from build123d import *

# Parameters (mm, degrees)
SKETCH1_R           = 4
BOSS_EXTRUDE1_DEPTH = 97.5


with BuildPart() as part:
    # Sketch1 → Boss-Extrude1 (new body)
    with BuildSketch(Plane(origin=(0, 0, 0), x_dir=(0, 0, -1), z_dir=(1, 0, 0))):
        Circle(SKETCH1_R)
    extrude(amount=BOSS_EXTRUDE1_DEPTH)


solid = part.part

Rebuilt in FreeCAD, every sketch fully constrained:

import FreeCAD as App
import Part
import Sketcher

V = App.Vector

doc = App.newDocument("Part")
params = doc.addObject("Spreadsheet::Sheet", "Params")
for row, (alias, value) in enumerate([
    ("sketch1_diameter", "8 mm"),
    ("pad1_length", "97.5 mm"),
], start=1):
    params.set(f"A{row}", alias)
    params.set(f"B{row}", "=" + value)
    params.setAlias(f"B{row}", alias)

body = doc.addObject("PartDesign::Body", "Body")

sketch1 = body.newObject("Sketcher::SketchObject", "Sketch")
sketch1.AttachmentSupport = (doc.getObject("YZ_Plane"), [""])
sketch1.MapMode = "FlatFace"
sketch1.addGeometry(Part.Circle(V(0, 0, 0), V(0, 0, 1), 4), False)
sketch1.addConstraint(Sketcher.Constraint("Coincident", 0, 3, -1, 1))
sketch1.addConstraint(Sketcher.Constraint("Diameter", 0, 8.0))
sketch1.setExpression("Constraints[1]", "Params.sketch1_diameter")
pad1 = body.newObject("PartDesign::Pad", "Pad")
pad1.Profile = sketch1
pad1.setExpression("Length", "Params.pad1_length")

doc.recompute()
